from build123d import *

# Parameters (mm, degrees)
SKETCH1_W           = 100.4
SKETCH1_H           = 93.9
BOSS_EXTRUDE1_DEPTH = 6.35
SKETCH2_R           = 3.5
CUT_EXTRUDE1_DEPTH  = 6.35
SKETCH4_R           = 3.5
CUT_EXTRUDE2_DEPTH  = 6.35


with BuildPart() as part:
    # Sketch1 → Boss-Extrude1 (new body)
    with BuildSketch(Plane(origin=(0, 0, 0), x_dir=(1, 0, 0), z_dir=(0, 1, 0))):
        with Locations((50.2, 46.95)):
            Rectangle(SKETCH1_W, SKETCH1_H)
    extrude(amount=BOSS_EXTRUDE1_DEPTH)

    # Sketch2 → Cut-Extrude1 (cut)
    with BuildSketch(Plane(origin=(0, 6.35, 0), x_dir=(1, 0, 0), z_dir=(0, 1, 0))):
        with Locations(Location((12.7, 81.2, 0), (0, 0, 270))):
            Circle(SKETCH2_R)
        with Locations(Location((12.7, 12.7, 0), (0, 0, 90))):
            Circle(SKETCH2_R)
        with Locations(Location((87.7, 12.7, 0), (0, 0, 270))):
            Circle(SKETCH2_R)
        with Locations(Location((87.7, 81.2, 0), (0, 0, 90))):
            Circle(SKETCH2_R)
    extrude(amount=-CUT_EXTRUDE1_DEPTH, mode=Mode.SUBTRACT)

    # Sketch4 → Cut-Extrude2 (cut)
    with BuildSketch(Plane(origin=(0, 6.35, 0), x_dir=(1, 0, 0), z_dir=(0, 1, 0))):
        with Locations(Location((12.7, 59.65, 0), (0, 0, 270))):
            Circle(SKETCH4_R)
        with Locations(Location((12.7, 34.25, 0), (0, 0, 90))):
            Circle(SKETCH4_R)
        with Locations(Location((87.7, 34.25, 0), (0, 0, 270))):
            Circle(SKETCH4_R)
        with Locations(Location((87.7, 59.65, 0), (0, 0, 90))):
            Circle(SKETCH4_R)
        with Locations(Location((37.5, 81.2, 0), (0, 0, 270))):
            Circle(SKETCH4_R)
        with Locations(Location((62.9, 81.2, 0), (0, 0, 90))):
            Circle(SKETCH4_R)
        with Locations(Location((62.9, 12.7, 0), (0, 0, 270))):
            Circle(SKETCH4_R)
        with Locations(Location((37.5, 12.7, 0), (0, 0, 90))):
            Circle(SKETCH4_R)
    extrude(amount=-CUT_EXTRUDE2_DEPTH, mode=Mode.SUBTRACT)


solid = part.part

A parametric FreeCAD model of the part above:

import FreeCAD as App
import Part
import Sketcher
from FreeCAD import Vector
Q = App.Units.Quantity

doc = App.newDocument("Part")
body = doc.addObject("PartDesign::Body", "Body")

sketch1 = body.newObject("Sketcher::SketchObject", "Sketch")
sketch1.AttachmentSupport = (doc.getObject("XZ_Plane"), [""])
sketch1.MapMode = "FlatFace"
sketch1.addGeometry([
    Part.LineSegment(Vector(0, -93.9, 0), Vector(0, 0, 0)),
    Part.LineSegment(Vector(0, 0, 0), Vector(100.4, 0, 0)),
    Part.LineSegment(Vector(100.4, 0, 0), Vector(100.4, -93.9, 0)),
    Part.LineSegment(Vector(100.4, -93.9, 0), Vector(0, -93.9, 0)),
], False)
sketch1.addConstraint([
    Sketcher.Constraint("Coincident", 0, 2, 1, 1),
    Sketcher.Constraint("Coincident", 1, 2, 2, 1),
    Sketcher.Constraint("Coincident", 2, 2, 3, 1),
    Sketcher.Constraint("Coincident", 3, 2, 0, 1),
    Sketcher.Constraint("Vertical", 0),
    Sketcher.Constraint("Horizontal", 1),
    Sketcher.Constraint("Vertical", 2),
    Sketcher.Constraint("Horizontal", 3),
    Sketcher.Constraint("Coincident", 0, 2, -1, 1),
    Sketcher.Constraint("DistanceX", 1, 1, 1, 2, Q("100.4 mm")),
    Sketcher.Constraint("DistanceY", 0, 1, 0, 2, Q("93.9 mm")),
])
pad1 = body.newObject("PartDesign::Pad", "Pad")
pad1.Profile = sketch1
pad1.Length = 6.35
pad1.Reversed = True

sketch2 = body.newObject("Sketcher::SketchObject", "Sketch001")
sketch2.AttachmentSupport = (doc.getObject("XZ_Plane"), [""])
sketch2.MapMode = "FlatFace"
sketch2.AttachmentOffset = App.Placement(Vector(0, 0, -6.35), App.Rotation())
sketch2.addGeometry([
    Part.Circle(Vector(12.7, -81.2, 0), Vector(0, 0, 1), 3.5),
    Part.Circle(Vector(12.7, -12.7, 0), Vector(0, 0, 1), 3.5),
    Part.Circle(Vector(87.7, -12.7, 0), Vector(0, 0, 1), 3.5),
    Part.Circle(Vector(87.7, -81.2, 0), Vector(0, 0, 1), 3.5),
], False)
sketch2.addConstraint([
    Sketcher.Constraint("Equal", 0, 1),
    Sketcher.Constraint("Equal", 1, 2),
    Sketcher.Constraint("Equal", 2, 3),
    Sketcher.Constraint("Horizontal", 1, 3, 2, 3),
    Sketcher.Constraint("Horizontal", 0, 3, 3, 3),
    Sketcher.Constraint("Vertical", 0, 3, 1, 3),
    Sketcher.Constraint("Vertical", 2, 3, 3, 3),
    Sketcher.Constraint("Diameter", 0, Q("7 mm")),
    Sketcher.Constraint("DistanceX", 1, 3, 2, 3, Q("75 mm")),
    Sketcher.Constraint("DistanceX", -1, 1, 0, 3, Q("12.7 mm")),
    Sketcher.Constraint("DistanceY", 0, 3, -1, 1, Q("81.2 mm")),
    Sketcher.Constraint("DistanceY", 1, 3, -1, 1, Q("12.7 mm")),
])
pocket1 = body.newObject("PartDesign::Pocket", "Pocket")
pocket1.Profile = sketch2
pocket1.Length = 6.35
pocket1.Reversed = True

sketch3 = body.newObject("Sketcher::SketchObject", "Sketch002")
sketch3.AttachmentSupport = (doc.getObject("XZ_Plane"), [""])
sketch3.MapMode = "FlatFace"
sketch3.AttachmentOffset = App.Placement(Vector(0, 0, -6.35), App.Rotation())
sketch3.addGeometry([
    Part.Circle(Vector(12.7, -59.65, 0), Vector(0, 0, 1), 3.5),
    Part.Circle(Vector(12.7, -34.25, 0), Vector(0, 0, 1), 3.5),
    Part.Circle(Vector(87.7, -34.25, 0), Vector(0, 0, 1), 3.5),
    Part.Circle(Vector(87.7, -59.65, 0), Vector(0, 0, 1), 3.5),
    Part.Circle(Vector(37.5, -81.2, 0), Vector(0, 0, 1), 3.5),
    Part.Circle(Vector(62.9, -81.2, 0), Vector(0, 0, 1), 3.5),
    Part.Circle(Vector(62.9, -12.7, 0), Vector(0, 0, 1), 3.5),
    Part.Circle(Vector(37.5, -12.7, 0), Vector(0, 0, 1), 3.5),
], False)
sketch3.addConstraint([
    Sketcher.Constraint("Equal", 0, 1),
    Sketcher.Constraint("Equal", 1, 2),
    Sketcher.Constraint("Equal", 2, 3),
    Sketcher.Constraint("Equal", 3, 4),
    Sketcher.Constraint("Equal", 4, 5),
    Sketcher.Constraint("Equal", 5, 6),
    Sketcher.Constraint("Equal", 6, 7),
    Sketcher.Constraint("Horizontal", 1, 3, 2, 3),
    Sketcher.Constraint("Horizontal", 0, 3, 3, 3),
    Sketcher.Constraint("Horizontal", 4, 3, 5, 3),
    Sketcher.Constraint("Horizontal", 6, 3, 7, 3),
    Sketcher.Constraint("Vertical", 0, 3, 1, 3),
    Sketcher.Constraint("Vertical", 2, 3, 3, 3),
    Sketcher.Constraint("Vertical", 5, 3, 6, 3),
    Sketcher.Constraint("Vertical", 4, 3, 7, 3),
    Sketcher.Constraint("Diameter", 0, Q("7 mm")),
    Sketcher.Constraint("DistanceX", 1, 3, 2, 3, Q("75 mm")),
    Sketcher.Constraint("DistanceX", -1, 1, 0, 3, Q("12.7 mm")),
    Sketcher.Constraint("DistanceX", -1, 1, 4, 3, Q("37.5 mm")),
    Sketcher.Constraint("DistanceY", 4, 3, -1, 1, Q("81.2 mm")),
    Sketcher.Constraint("DistanceX", -1, 1, 5, 3, Q("62.9 mm")),
    Sketcher.Constraint("DistanceY", 6, 3, -1, 1, Q("12.7 mm")),
    Sketcher.Constraint("DistanceY", 0, 3, 1, 3, Q("25.4 mm")),
    Sketcher.Constraint("DistanceY", 0, 3, -1, 1, Q("59.65 mm")),
])
pocket2 = body.newObject("PartDesign::Pocket", "Pocket001")
pocket2.Profile = sketch3
pocket2.Length = 6.35
pocket2.Reversed = True

doc.recompute()
